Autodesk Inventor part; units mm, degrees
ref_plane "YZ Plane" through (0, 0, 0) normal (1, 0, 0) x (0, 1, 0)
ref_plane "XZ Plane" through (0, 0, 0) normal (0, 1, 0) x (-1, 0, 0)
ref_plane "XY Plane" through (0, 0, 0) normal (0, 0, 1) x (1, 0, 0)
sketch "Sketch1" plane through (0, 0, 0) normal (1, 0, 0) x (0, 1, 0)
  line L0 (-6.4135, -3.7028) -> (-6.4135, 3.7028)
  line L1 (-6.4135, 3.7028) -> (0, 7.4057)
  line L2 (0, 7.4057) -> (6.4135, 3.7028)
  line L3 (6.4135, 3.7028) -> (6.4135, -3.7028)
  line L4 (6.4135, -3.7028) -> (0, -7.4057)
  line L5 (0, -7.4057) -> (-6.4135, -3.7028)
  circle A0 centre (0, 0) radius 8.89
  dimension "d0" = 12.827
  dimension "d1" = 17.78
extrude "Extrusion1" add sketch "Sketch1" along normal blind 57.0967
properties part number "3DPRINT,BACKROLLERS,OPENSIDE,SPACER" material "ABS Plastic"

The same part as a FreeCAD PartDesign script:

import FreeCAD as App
import Part
import Sketcher
from FreeCAD import Vector
Q = App.Units.Quantity

doc = App.newDocument("Part")
body = doc.addObject("PartDesign::Body", "Body")

sketch1 = body.newObject("Sketcher::SketchObject", "Sketch")
sketch1.AttachmentSupport = (doc.getObject("YZ_Plane"), [""])
sketch1.MapMode = "FlatFace"
sketch1.addGeometry([
    Part.Circle(Vector(0, 0, 0), Vector(0, 0, 1), 9),
    Part.LineSegment(Vector(0, -7, 0), Vector(-6, -4, 0)),
    Part.LineSegment(Vector(-6, -4, 0), Vector(-6, 4, 0)),
    Part.LineSegment(Vector(-6, 4, 0), Vector(0, 7, 0)),
    Part.LineSegment(Vector(0, 7, 0), Vector(6, 4, 0)),
    Part.LineSegment(Vector(6, 4, 0), Vector(6, -4, 0)),
    Part.LineSegment(Vector(6, -4, 0), Vector(0, -7, 0)),
], False)
sketch1.addConstraint([
    Sketcher.Constraint("Coincident", 1, 2, 2, 1),
    Sketcher.Constraint("Coincident", 2, 2, 3, 1),
    Sketcher.Constraint("Coincident", 3, 2, 4, 1),
    Sketcher.Constraint("Coincident", 4, 2, 5, 1),
    Sketcher.Constraint("Coincident", 5, 2, 6, 1),
    Sketcher.Constraint("Coincident", 6, 2, 1, 1),
    Sketcher.Constraint("Vertical", 2),
    Sketcher.Constraint("Vertical", 5),
    Sketcher.Constraint("Coincident", 0, 3, -1, 1),
    Sketcher.Constraint("Symmetric", 1, 2, 4, 2, -1, 1),
    Sketcher.Constraint("Symmetric", 3, 2, 6, 2, -1, 1),
    Sketcher.Constraint("PointOnObject", 3, 2, -2),
    Sketcher.Constraint("Parallel", 3, 6),
    Sketcher.Constraint("Horizontal", 2, 2, 4, 2),
    Sketcher.Constraint("Diameter", 0, Q("0.7 in")),
    Sketcher.Constraint("Angle", 1, Q("149.9996 deg")),
    Sketcher.Constraint("DistanceX", 2, 2, 4, 2, Q("0.505 in")),
    Sketcher.Constraint("DistanceY", 2, 1, 2, 2, Q("7.4056 mm")),
])
pad1 = body.newObject("PartDesign::Pad", "Pad")
pad1.Profile = sketch1
pad1.Length = Q("2.2479016 in")

doc.recompute()
